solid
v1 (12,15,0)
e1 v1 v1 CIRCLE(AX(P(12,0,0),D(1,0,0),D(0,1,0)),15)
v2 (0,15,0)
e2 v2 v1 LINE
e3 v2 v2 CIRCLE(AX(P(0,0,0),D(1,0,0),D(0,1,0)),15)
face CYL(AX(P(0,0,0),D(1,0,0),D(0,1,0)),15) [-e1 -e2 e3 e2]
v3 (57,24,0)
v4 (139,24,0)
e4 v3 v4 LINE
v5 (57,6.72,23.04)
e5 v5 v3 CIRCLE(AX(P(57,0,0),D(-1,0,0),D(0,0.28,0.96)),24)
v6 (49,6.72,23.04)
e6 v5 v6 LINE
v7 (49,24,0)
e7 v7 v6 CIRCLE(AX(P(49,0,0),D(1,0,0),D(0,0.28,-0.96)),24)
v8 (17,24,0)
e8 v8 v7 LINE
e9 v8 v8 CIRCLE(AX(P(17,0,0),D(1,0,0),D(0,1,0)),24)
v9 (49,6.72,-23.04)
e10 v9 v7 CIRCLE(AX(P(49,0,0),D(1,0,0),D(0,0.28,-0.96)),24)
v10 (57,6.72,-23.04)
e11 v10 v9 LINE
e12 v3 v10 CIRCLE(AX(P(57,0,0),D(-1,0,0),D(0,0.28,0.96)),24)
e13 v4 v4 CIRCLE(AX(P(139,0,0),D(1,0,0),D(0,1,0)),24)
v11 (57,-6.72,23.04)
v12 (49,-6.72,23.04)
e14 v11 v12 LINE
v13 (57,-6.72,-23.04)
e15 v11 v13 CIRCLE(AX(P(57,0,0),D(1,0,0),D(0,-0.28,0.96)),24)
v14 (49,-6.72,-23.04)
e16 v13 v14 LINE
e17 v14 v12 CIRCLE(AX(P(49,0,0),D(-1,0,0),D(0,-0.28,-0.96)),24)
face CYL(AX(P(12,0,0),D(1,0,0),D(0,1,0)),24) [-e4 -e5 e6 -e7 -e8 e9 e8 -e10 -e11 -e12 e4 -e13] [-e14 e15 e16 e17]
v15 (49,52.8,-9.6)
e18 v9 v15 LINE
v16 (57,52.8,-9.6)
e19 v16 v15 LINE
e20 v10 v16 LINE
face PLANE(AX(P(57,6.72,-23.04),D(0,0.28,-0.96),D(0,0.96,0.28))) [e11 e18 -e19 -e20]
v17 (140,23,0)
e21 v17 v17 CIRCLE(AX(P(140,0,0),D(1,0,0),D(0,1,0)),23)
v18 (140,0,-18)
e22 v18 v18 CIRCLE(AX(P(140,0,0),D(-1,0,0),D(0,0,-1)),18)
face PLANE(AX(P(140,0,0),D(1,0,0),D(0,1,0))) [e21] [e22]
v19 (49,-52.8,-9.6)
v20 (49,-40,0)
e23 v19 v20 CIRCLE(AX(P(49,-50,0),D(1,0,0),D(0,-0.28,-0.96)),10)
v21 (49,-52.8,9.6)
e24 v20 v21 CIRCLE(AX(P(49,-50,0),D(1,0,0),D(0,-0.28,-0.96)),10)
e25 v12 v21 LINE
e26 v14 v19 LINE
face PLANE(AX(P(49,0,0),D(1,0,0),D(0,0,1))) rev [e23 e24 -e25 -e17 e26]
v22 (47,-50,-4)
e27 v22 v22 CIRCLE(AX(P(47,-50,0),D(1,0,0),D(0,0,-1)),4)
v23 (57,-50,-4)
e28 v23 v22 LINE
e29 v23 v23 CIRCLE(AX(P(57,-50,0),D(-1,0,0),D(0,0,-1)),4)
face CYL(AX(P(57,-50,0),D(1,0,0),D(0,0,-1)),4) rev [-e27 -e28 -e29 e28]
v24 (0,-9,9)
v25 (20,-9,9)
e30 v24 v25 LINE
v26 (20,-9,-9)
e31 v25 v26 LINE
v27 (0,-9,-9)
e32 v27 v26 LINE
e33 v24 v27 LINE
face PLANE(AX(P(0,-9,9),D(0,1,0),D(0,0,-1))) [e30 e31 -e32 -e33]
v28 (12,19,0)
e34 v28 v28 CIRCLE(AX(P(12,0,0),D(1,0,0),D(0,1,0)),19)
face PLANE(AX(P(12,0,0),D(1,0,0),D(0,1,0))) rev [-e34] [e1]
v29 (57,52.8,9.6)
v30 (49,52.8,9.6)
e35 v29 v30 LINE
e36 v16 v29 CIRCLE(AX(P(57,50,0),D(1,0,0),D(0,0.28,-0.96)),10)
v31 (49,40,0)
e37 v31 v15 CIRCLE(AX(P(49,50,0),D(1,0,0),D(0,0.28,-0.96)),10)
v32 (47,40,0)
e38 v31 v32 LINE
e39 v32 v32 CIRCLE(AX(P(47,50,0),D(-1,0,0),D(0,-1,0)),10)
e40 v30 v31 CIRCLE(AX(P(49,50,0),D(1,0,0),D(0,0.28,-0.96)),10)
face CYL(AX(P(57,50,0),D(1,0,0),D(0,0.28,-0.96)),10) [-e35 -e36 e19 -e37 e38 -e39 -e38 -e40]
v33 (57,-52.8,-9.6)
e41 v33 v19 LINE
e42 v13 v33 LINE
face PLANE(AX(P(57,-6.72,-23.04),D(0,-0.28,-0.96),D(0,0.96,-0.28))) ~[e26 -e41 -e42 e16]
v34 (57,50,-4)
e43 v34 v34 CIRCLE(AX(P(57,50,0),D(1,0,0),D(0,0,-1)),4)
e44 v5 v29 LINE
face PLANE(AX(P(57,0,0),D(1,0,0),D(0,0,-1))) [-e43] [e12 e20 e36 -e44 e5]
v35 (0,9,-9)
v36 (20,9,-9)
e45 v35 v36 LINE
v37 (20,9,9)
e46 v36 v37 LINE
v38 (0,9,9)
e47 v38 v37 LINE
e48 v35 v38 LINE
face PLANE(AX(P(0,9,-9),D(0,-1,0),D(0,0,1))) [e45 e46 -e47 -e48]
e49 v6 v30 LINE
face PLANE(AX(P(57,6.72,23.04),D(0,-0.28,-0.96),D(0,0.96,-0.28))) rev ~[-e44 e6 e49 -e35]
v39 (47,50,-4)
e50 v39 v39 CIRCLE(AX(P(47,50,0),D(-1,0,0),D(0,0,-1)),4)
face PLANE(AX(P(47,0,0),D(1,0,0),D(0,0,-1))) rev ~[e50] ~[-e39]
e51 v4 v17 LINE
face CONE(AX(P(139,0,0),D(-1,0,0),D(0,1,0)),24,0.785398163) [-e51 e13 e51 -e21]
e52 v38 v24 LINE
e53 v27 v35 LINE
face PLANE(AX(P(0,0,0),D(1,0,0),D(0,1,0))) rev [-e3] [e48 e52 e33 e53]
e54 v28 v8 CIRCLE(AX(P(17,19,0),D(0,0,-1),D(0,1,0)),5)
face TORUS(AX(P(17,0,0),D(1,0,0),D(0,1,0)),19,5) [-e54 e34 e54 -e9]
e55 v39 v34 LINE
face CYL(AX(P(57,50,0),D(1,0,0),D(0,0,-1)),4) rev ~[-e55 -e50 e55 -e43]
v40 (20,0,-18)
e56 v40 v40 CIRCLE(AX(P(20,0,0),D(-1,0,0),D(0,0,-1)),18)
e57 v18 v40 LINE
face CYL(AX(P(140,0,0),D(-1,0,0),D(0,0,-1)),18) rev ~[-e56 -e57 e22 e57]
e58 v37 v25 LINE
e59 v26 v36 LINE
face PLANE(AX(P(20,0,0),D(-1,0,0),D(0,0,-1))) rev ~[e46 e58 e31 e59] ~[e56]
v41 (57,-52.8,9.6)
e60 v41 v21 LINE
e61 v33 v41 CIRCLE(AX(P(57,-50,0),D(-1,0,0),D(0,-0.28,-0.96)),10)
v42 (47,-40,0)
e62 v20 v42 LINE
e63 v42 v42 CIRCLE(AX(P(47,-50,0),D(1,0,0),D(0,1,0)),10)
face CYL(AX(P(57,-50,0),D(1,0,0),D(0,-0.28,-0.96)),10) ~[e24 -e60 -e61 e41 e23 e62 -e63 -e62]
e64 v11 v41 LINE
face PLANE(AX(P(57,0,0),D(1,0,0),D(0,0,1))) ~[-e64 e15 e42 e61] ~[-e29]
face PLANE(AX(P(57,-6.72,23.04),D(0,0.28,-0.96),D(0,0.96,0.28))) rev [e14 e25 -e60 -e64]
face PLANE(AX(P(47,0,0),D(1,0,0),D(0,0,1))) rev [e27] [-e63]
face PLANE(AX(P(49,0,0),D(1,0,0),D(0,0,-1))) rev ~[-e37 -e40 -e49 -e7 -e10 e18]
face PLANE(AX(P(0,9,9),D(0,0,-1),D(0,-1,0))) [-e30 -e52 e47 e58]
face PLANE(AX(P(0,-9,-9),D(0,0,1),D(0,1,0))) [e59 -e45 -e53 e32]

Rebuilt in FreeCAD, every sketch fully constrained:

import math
import FreeCAD as App
import Part
import Sketcher
Q = App.Units.Quantity


def edges_at(feature, points):
    """Names of the edges that pass closest to the given points."""
    edges = feature.Shape.Edges
    near = lambda p: min(range(len(edges)), key=lambda i: edges[i].distToShape(Part.Vertex(*p))[0])
    return sorted({f"Edge{near(p) + 1}" for p in points})

doc = App.newDocument("Part")
body = doc.addObject("PartDesign::Body", "Body")

# Sketch on XY plane
sketch1 = body.newObject("Sketcher::SketchObject", "Sketch")
sketch1.AttachmentSupport = (doc.getObject("XY_Plane"), [""])
sketch1.MapMode = "FlatFace"
sketch1.addGeometry([
    Part.LineSegment(App.Vector(0, 15, 0), App.Vector(0, 0, 0)),  # 0
    Part.LineSegment(App.Vector(0, 0, 0), App.Vector(140, 0, 0)),  # 1
    Part.LineSegment(App.Vector(140, 0, 0), App.Vector(140, 24, 0)),  # 2
    Part.LineSegment(App.Vector(140, 24, 0), App.Vector(12, 24, 0)),  # 3
    Part.LineSegment(App.Vector(12, 24, 0), App.Vector(12, 15, 0)),  # 4
    Part.LineSegment(App.Vector(12, 15, 0), App.Vector(0, 15, 0)),  # 5
], False)
sketch1.addConstraint([
    Sketcher.Constraint("Coincident", 0, 2, 1, 1),
    Sketcher.Constraint("Coincident", 1, 2, 2, 1),
    Sketcher.Constraint("Coincident", 2, 2, 3, 1),
    Sketcher.Constraint("Coincident", 3, 2, 4, 1),
    Sketcher.Constraint("Coincident", 4, 2, 5, 1),
    Sketcher.Constraint("Coincident", 5, 2, 0, 1),
    Sketcher.Constraint("Vertical", 0),
    Sketcher.Constraint("Horizontal", 1),
    Sketcher.Constraint("Vertical", 2),
    Sketcher.Constraint("Horizontal", 3),
    Sketcher.Constraint("Vertical", 4),
    Sketcher.Constraint("Horizontal", 5),
    Sketcher.Constraint("Coincident", 0, 2, -1, 1),
    Sketcher.Constraint("DistanceX", 1, 1, 1, 2, Q("140 mm")),
    Sketcher.Constraint("DistanceX", 5, 2, 5, 1, Q("12 mm")),
    Sketcher.Constraint("DistanceY", 0, 2, 0, 1, Q("15 mm")),
    Sketcher.Constraint("DistanceY", 2, 1, 2, 2, Q("24 mm")),
])
revolution = body.newObject("PartDesign::Revolution", "Revolution")
revolution.Profile = sketch1
revolution.ReferenceAxis = (sketch1, ["H_Axis"])
revolution.Angle = 360

# Sketch on YZ plane
sketch2 = body.newObject("Sketcher::SketchObject", "Sketch001")
sketch2.AttachmentSupport = (doc.getObject("YZ_Plane"), [""])
sketch2.MapMode = "FlatFace"
sketch2.AttachmentOffset = App.Placement(App.Vector(0, 0, 57), App.Rotation())
sketch2.addGeometry([
    Part.ArcOfCircle(Part.Circle(App.Vector(50, 0, 0), App.Vector(0, 0, 1), 10), math.radians(-73.739795), math.radians(73.739795)),  # 0
    Part.LineSegment(App.Vector(52.8, 9.6, 0), App.Vector(6.72, 23.04, 0)),  # 1
    Part.ArcOfCircle(Part.Circle(App.Vector(0, 0, 0), App.Vector(0, 0, 1), 24), math.radians(-73.739795), math.radians(73.739795)),  # 2
    Part.LineSegment(App.Vector(6.72, -23.04, 0), App.Vector(52.8, -9.6, 0)),  # 3
    Part.Circle(App.Vector(50, 0, 0), App.Vector(0, 0, 1), 4),  # 4
], False)
sketch2.addConstraint([
    Sketcher.Constraint("Tangent", 0, 2, 1, 1),
    Sketcher.Constraint("Tangent", 1, 2, 2, 2),
    Sketcher.Constraint("Tangent", 2, 1, 3, 1),
    Sketcher.Constraint("Tangent", 3, 2, 0, 1),
    Sketcher.Constraint("Coincident", 2, 3, -1, 1),
    Sketcher.Constraint("Coincident", 4, 3, 0, 3),
    Sketcher.Constraint("PointOnObject", 0, 3, -1),
    Sketcher.Constraint("Diameter", 4, Q("8 mm")),
    Sketcher.Constraint("Radius", 0, Q("10 mm")),
    Sketcher.Constraint("DistanceX", -1, 1, 0, 3, Q("50 mm")),
    Sketcher.Constraint("Radius", 2, Q("24 mm")),
])
pad1 = body.newObject("PartDesign::Pad", "Pad")
pad1.Profile = sketch2
pad1.Length = 8
pad1.Reversed = True

# Sketch on YZ plane
sketch3 = body.newObject("Sketcher::SketchObject", "Sketch002")
sketch3.AttachmentSupport = (doc.getObject("YZ_Plane"), [""])
sketch3.MapMode = "FlatFace"
sketch3.AttachmentOffset = App.Placement(App.Vector(0, 0, 57), App.Rotation())
sketch3.addGeometry([
    Part.Circle(App.Vector(50, 0, 0), App.Vector(0, 0, 1), 10),
    Part.Circle(App.Vector(50, 0, 0), App.Vector(0, 0, 1), 4),
], False)
sketch3.addConstraint([
    Sketcher.Constraint("Coincident", 1, 3, 0, 3),
    Sketcher.Constraint("PointOnObject", 0, 3, -1),
    Sketcher.Constraint("Diameter", 0, Q("20 mm")),
    Sketcher.Constraint("Diameter", 1, Q("8 mm")),
    Sketcher.Constraint("DistanceX", -1, 1, 0, 3, Q("50 mm")),
])
pad2 = body.newObject("PartDesign::Pad", "Pad001")
pad2.Profile = sketch3
pad2.Length = 10
pad2.Reversed = True
doc.recompute()

mirrored = body.newObject("PartDesign::Mirrored", "Mirrored")
mirrored.Originals = [pad1, pad2]
mirrored.MirrorPlane = (doc.getObject("XZ_Plane"), [""])
body.Tip = mirrored

# Sketch on YZ plane
sketch4 = body.newObject("Sketcher::SketchObject", "Sketch003")
sketch4.AttachmentSupport = (doc.getObject("YZ_Plane"), [""])
sketch4.MapMode = "FlatFace"
sketch4.AttachmentOffset = App.Placement(App.Vector(0, 0, 140), App.Rotation())
sketch4.addGeometry(Part.Circle(App.Vector(0, 0, 0), App.Vector(0, 0, 1), 18), False)
sketch4.addConstraint([
    Sketcher.Constraint("Coincident", 0, 3, -1, 1),
    Sketcher.Constraint("Diameter", 0, Q("36 mm")),
])
doc.recompute()
hole = body.newObject("PartDesign::Hole", "Hole")
hole.Profile = sketch4
hole.ThreadType = "None"
hole.Diameter = 36
hole.DepthType = "Dimension"
hole.Depth = 120
hole.DrillPoint = "Flat"

# Sketch on YZ plane
sketch5 = body.newObject("Sketcher::SketchObject", "Sketch004")
sketch5.AttachmentSupport = (doc.getObject("YZ_Plane"), [""])
sketch5.MapMode = "FlatFace"
sketch5.addGeometry([
    Part.LineSegment(App.Vector(-9, 9, 0), App.Vector(9, 9, 0)),
    Part.LineSegment(App.Vector(9, 9, 0), App.Vector(9, -9, 0)),
    Part.LineSegment(App.Vector(9, -9, 0), App.Vector(-9, -9, 0)),
    Part.LineSegment(App.Vector(-9, -9, 0), App.Vector(-9, 9, 0)),
], False)
sketch5.addConstraint([
    Sketcher.Constraint("Coincident", 0, 2, 1, 1),
    Sketcher.Constraint("Coincident", 1, 2, 2, 1),
    Sketcher.Constraint("Coincident", 2, 2, 3, 1),
    Sketcher.Constraint("Coincident", 3, 2, 0, 1),
    Sketcher.Constraint("Horizontal", 0),
    Sketcher.Constraint("Vertical", 1),
    Sketcher.Constraint("Horizontal", 2),
    Sketcher.Constraint("Vertical", 3),
    Sketcher.Constraint("Symmetric", 0, 2, 2, 2, -1, 1),
    Sketcher.Constraint("Equal", 2, 1),
    Sketcher.Constraint("DistanceX", 0, 1, 0, 2, Q("18 mm")),
])
pocket1 = body.newObject("PartDesign::Pocket", "Pocket")
pocket1.Profile = sketch5
pocket1.Length = 20
pocket1.Reversed = True
doc.recompute()

fillet = body.newObject("PartDesign::Fillet", "Fillet")
fillet.Base = (pocket1, edges_at(pocket1, [(12, -24, 0)]))
fillet.Radius = 5
doc.recompute()

chamfer = body.newObject("PartDesign::Chamfer", "Chamfer")
chamfer.Base = (fillet, edges_at(fillet, [(140, -24, 0)]))
chamfer.Size = 1

doc.recompute()
